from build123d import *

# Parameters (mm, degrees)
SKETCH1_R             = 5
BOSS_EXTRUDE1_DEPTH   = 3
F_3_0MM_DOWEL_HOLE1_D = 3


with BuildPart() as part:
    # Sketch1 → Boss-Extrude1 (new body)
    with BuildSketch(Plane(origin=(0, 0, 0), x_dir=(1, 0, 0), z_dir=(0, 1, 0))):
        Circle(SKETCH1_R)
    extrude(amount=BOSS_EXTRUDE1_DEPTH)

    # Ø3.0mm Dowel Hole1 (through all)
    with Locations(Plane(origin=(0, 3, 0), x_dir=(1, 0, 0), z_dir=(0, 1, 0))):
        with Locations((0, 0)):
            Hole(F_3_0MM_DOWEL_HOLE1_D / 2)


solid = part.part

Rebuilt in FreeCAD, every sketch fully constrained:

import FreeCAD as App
import Part
import Sketcher

doc = App.newDocument("Part")
body = doc.addObject("PartDesign::Body", "Body")

sketch1 = doc.addObject("Sketcher::SketchObject", "Sketch")
body.addObject(sketch1)
sketch1.AttachmentSupport = (doc.XZ_Plane, [""])
sketch1.MapMode = "FlatFace"
sketch1.addGeometry(Part.Circle(App.Vector(0, 0, 0), App.Vector(0, 0, 1), 5), False)
sketch1.addConstraint([
    Sketcher.Constraint("Coincident", 0, 3, -1, 1),
    Sketcher.Constraint("Diameter", 0, 10.0),
])
pad1 = doc.addObject("PartDesign::Pad", "Pad")
body.addObject(pad1)
pad1.Profile = sketch1
pad1.Length = 3
pad1.Reversed = True

sketch2 = doc.addObject("Sketcher::SketchObject", "Sketch001")
body.addObject(sketch2)
sketch2.AttachmentSupport = (doc.XZ_Plane, [""])
sketch2.MapMode = "FlatFace"
sketch2.AttachmentOffset = App.Placement(App.Vector(0, 0, -3), App.Rotation())
sketch2.addGeometry(Part.Circle(App.Vector(0, 0, 0), App.Vector(0, 0, 1), 1.5), False)
sketch2.addConstraint([
    Sketcher.Constraint("Coincident", 0, 3, -1, 1),
    Sketcher.Constraint("Diameter", 0, 3.0),
])
doc.recompute()
hole = doc.addObject("PartDesign::Hole", "Hole")
body.addObject(hole)
hole.Profile = sketch2
hole.ThreadType = "None"
hole.Diameter = 3
hole.DepthType = "ThroughAll"
hole.Reversed = True

doc.recompute()
